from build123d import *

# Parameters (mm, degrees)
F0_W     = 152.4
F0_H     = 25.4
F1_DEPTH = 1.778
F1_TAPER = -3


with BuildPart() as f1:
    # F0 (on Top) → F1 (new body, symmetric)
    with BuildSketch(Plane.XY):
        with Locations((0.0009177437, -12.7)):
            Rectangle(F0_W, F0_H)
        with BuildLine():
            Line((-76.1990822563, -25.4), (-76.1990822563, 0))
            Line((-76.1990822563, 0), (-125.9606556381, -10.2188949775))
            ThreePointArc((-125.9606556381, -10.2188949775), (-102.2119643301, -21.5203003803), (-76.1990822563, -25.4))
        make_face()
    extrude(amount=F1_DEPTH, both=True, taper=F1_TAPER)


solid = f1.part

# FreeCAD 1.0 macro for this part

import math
import FreeCAD as App
import Part
import Sketcher
Q = App.Units.Quantity

doc = App.newDocument("Part")
body = doc.addObject("PartDesign::Body", "Body")

# Sketch on XY plane
sketch1 = doc.addObject("Sketcher::SketchObject", "Sketch")
body.addObject(sketch1)
sketch1.AttachmentSupport = (doc.XY_Plane, [""])
sketch1.MapMode = "FlatFace"
sketch1.addGeometry(Part.LineSegment(App.Vector(-76, -25, 0), App.Vector(76, -25, 0)), False)
sketch1.addGeometry(Part.LineSegment(App.Vector(76, -25, 0), App.Vector(76, 0, 0)), False)
sketch1.addGeometry(Part.LineSegment(App.Vector(76, 0, 0), App.Vector(-76, 0, 0)), False)
sketch1.addGeometry(Part.LineSegment(App.Vector(-76, 0, 0), App.Vector(-126, -10, 0)), False)
sketch1.addGeometry(Part.ArcOfCircle(Part.Circle(App.Vector(-76, 64, 0), App.Vector(0, 0, 1), 89), math.radians(-124), math.radians(-90)), False)
sketch1.addConstraint(Sketcher.Constraint("Coincident", 0, 2, 1, 1))
sketch1.addConstraint(Sketcher.Constraint("Coincident", 1, 2, 2, 1))
sketch1.addConstraint(Sketcher.Constraint("Coincident", 2, 2, 3, 1))
sketch1.addConstraint(Sketcher.Constraint("Coincident", 3, 2, 4, 1))
sketch1.addConstraint(Sketcher.Constraint("Tangent", 4, 2, 0, 1))
sketch1.addConstraint(Sketcher.Constraint("Horizontal", 0))
sketch1.addConstraint(Sketcher.Constraint("Vertical", 1))
sketch1.addConstraint(Sketcher.Constraint("Horizontal", 2))
sketch1.addConstraint(Sketcher.Constraint("PointOnObject", 1, 2, -1))
sketch1.addConstraint(Sketcher.Constraint("Vertical", 4, 3, 2, 2))
sketch1.addConstraint(Sketcher.Constraint("DistanceX", 0, 1, 0, 2, Q("6 in")))
sketch1.addConstraint(Sketcher.Constraint("DistanceY", 1, 1, 1, 2, Q("1 in")))
sketch1.addConstraint(Sketcher.Constraint("Distance", 3, Q("2 in")))
sketch1.addConstraint(Sketcher.Constraint("Radius", 4, 89.146348))
sketch1.addConstraint(Sketcher.Constraint("DistanceX", 4, 3, -1, 1, 76.199082))
pad1 = doc.addObject("PartDesign::Pad", "Pad")
body.addObject(pad1)
pad1.Profile = sketch1
pad1.Length = Q("0.14 in")
pad1.Midplane = True
pad1.TaperAngle = 3

doc.recompute()
